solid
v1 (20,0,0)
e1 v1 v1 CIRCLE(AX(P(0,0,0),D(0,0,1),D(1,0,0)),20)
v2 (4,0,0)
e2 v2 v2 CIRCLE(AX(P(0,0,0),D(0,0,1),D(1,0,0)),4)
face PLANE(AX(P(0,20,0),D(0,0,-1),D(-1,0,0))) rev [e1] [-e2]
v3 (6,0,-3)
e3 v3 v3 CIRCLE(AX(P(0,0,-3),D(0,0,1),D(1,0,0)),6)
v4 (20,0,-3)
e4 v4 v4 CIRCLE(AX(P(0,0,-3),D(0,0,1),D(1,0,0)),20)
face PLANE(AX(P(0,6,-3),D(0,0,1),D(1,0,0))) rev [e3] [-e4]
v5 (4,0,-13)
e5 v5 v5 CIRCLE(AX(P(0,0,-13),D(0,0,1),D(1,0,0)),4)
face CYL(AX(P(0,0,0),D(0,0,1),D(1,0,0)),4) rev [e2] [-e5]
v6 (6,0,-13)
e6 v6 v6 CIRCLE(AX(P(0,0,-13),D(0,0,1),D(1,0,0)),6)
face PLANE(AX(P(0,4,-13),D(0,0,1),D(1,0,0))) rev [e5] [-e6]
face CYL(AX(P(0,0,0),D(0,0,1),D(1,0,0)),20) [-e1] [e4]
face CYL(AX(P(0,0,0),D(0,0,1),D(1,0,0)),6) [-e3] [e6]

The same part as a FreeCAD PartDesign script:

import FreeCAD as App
import Part
import Sketcher
from FreeCAD import Vector
Q = App.Units.Quantity

doc = App.newDocument("Part")
params = doc.addObject("Spreadsheet::Sheet", "Params")
for row, (alias, value) in enumerate([
    ("sketch1_width", "2 mm"),
    ("sketch1_width2", "14 mm"),
    ("sketch1_height", "13 mm"),
    ("sketch1_height2", "10 mm"),
    ("revolution_angle", "360 deg"),
], start=1):
    params.set(f"A{row}", alias)
    params.set(f"B{row}", "=" + value)
    params.setAlias(f"B{row}", alias)

body = doc.addObject("PartDesign::Body", "Body")

sketch1 = body.newObject("Sketcher::SketchObject", "Sketch")
sketch1.AttachmentSupport = (doc.getObject("YZ_Plane"), [""])
sketch1.MapMode = "FlatFace"
sketch1.addGeometry(Part.LineSegment(Vector(4, 0, 0), Vector(4, -13, 0)), False)
sketch1.addGeometry(Part.LineSegment(Vector(4, -13, 0), Vector(6, -13, 0)), False)
sketch1.addGeometry(Part.LineSegment(Vector(6, -13, 0), Vector(6, -3, 0)), False)
sketch1.addGeometry(Part.LineSegment(Vector(6, -3, 0), Vector(20, -3, 0)), False)
sketch1.addGeometry(Part.LineSegment(Vector(20, -3, 0), Vector(20, 0, 0)), False)
sketch1.addGeometry(Part.LineSegment(Vector(20, 0, 0), Vector(4, 0, 0)), False)
sketch1.addConstraint(Sketcher.Constraint("Coincident", 0, 2, 1, 1))
sketch1.addConstraint(Sketcher.Constraint("Coincident", 1, 2, 2, 1))
sketch1.addConstraint(Sketcher.Constraint("Coincident", 2, 2, 3, 1))
sketch1.addConstraint(Sketcher.Constraint("Coincident", 3, 2, 4, 1))
sketch1.addConstraint(Sketcher.Constraint("Coincident", 4, 2, 5, 1))
sketch1.addConstraint(Sketcher.Constraint("Coincident", 5, 2, 0, 1))
sketch1.addConstraint(Sketcher.Constraint("Vertical", 0))
sketch1.addConstraint(Sketcher.Constraint("Horizontal", 1))
sketch1.addConstraint(Sketcher.Constraint("Vertical", 2))
sketch1.addConstraint(Sketcher.Constraint("Horizontal", 3))
sketch1.addConstraint(Sketcher.Constraint("Vertical", 4))
sketch1.addConstraint(Sketcher.Constraint("Horizontal", 5))
sketch1.addConstraint(Sketcher.Constraint("PointOnObject", 4, 2, -1))
sketch1.addConstraint(Sketcher.Constraint("DistanceX", 1, 1, 1, 2, Q("2 mm")))
sketch1.addConstraint(Sketcher.Constraint("DistanceX", 3, 1, 3, 2, Q("14 mm")))
sketch1.addConstraint(Sketcher.Constraint("DistanceY", 0, 2, 0, 1, Q("13 mm")))
sketch1.addConstraint(Sketcher.Constraint("DistanceY", 2, 1, 2, 2, Q("10 mm")))
sketch1.addConstraint(Sketcher.Constraint("DistanceX", -1, 1, 0, 2, Q("4 mm")))
sketch1.setExpression("Constraints[13]", "Params.sketch1_width")
sketch1.setExpression("Constraints[14]", "Params.sketch1_width2")
sketch1.setExpression("Constraints[15]", "Params.sketch1_height")
sketch1.setExpression("Constraints[16]", "Params.sketch1_height2")
revolution = body.newObject("PartDesign::Revolution", "Revolution")
revolution.Profile = sketch1
revolution.ReferenceAxis = (sketch1, ["V_Axis"])
revolution.setExpression("Angle", "Params.revolution_angle")

doc.recompute()
